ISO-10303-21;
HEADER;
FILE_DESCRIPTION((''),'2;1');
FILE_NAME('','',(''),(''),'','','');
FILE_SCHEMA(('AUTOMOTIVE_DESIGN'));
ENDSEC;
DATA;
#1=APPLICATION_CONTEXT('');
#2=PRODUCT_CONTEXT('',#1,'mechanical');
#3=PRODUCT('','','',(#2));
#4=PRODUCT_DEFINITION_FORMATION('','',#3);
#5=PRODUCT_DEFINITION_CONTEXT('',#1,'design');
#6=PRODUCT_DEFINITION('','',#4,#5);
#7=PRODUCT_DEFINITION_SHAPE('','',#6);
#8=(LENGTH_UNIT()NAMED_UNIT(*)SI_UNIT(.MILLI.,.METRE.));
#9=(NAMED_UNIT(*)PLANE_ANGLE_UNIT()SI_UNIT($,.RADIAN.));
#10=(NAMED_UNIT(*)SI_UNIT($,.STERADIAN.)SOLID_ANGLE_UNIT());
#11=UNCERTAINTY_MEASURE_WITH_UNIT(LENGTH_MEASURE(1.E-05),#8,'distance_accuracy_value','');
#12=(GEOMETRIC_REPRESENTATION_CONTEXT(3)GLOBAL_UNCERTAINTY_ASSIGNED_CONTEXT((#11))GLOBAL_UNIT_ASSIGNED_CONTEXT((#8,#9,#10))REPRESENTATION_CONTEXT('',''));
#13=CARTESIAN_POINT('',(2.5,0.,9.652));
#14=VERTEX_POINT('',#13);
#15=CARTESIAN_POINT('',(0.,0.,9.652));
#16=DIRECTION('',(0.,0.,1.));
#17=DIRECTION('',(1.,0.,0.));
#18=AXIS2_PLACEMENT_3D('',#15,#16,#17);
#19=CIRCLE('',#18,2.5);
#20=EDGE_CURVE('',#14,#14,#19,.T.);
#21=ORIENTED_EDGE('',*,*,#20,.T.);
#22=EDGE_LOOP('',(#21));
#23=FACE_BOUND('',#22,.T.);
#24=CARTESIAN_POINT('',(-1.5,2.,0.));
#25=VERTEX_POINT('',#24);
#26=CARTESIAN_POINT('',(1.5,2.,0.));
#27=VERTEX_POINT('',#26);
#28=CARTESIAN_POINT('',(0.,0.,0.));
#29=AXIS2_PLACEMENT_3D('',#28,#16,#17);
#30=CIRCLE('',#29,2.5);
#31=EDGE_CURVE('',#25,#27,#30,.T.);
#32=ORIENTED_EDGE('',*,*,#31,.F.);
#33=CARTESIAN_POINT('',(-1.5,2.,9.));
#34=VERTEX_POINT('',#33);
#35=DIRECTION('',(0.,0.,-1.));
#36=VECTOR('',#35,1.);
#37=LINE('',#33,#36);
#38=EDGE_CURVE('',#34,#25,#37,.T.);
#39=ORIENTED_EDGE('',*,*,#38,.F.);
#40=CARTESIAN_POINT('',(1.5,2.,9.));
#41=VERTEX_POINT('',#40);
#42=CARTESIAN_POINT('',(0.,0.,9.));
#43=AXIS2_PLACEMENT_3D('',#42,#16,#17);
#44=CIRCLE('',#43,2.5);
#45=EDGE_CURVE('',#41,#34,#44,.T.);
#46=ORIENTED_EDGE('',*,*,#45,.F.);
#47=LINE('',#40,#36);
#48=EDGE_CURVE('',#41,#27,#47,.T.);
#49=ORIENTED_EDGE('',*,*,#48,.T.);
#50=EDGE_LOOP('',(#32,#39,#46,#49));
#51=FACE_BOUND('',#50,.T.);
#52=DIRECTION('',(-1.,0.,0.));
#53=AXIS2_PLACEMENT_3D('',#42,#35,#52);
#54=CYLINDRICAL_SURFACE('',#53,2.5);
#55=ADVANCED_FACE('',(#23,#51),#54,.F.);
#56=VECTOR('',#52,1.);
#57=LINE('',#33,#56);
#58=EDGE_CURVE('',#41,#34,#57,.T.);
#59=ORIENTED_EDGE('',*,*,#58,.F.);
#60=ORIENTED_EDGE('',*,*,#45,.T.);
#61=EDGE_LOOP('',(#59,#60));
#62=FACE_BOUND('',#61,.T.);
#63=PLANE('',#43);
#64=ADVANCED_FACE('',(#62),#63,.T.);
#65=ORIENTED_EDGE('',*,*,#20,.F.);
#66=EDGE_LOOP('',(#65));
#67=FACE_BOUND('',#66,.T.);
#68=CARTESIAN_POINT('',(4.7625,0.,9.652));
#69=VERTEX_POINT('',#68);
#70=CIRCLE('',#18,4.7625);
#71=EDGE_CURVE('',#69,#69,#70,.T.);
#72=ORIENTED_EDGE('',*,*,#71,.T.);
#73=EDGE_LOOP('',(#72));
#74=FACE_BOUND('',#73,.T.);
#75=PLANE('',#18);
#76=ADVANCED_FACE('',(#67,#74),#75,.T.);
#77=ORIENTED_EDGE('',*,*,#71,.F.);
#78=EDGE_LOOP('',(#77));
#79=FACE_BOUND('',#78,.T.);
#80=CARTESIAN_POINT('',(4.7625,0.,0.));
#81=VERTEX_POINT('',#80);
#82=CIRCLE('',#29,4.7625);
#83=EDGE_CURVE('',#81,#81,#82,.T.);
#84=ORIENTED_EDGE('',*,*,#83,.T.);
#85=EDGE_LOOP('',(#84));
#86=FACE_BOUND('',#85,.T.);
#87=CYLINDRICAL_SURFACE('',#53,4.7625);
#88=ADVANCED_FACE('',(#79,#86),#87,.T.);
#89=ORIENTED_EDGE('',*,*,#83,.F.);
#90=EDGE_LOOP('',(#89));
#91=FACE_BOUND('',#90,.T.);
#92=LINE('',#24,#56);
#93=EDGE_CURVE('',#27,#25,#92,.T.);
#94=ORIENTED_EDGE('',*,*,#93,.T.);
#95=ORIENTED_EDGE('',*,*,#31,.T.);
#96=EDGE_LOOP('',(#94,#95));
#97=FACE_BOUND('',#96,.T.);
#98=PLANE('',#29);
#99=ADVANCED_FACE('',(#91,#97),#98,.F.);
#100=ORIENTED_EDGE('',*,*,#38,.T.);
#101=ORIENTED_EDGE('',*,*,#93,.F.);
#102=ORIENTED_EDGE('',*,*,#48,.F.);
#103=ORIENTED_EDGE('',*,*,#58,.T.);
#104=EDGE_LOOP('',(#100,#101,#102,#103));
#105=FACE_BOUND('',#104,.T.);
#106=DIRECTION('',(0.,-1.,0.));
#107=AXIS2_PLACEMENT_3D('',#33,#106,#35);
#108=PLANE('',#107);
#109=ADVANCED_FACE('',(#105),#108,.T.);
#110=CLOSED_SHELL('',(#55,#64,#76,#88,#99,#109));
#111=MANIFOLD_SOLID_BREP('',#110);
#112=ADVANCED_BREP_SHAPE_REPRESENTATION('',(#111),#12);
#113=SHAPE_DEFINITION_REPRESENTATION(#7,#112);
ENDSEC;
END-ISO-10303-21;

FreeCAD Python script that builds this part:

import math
import FreeCAD as App
import Part
import Sketcher

V = App.Vector

doc = App.newDocument("Part")
body = doc.addObject("PartDesign::Body", "Body")

# Sketch on XY plane
sketch1 = body.newObject("Sketcher::SketchObject", "Sketch")
sketch1.AttachmentSupport = (doc.getObject("XY_Plane"), [""])
sketch1.MapMode = "FlatFace"
sketch1.addGeometry([
    Part.Circle(V(0, 0, 0), V(0, 0, 1), 4.7625),
    Part.ArcOfCircle(Part.Circle(V(0, 0, 0), V(0, 0, 1), 2.5), math.radians(126.869898), math.radians(413.130102)),
    Part.LineSegment(V(-1.5, 2, 0), V(1.5, 2, 0)),
], False)
sketch1.addConstraint([
    Sketcher.Constraint("Coincident", 1, 1, 2, 1),
    Sketcher.Constraint("Coincident", 2, 2, 1, 2),
    Sketcher.Constraint("Horizontal", 2),
    Sketcher.Constraint("Coincident", 0, 3, -1, 1),
    Sketcher.Constraint("Coincident", 1, 3, -1, 1),
    Sketcher.Constraint("Radius", 1, 2.5),
    Sketcher.Constraint("DistanceX", 2, 1, 2, 2, 3.0),
    Sketcher.Constraint("Diameter", 0, 9.525),
])
pad1 = body.newObject("PartDesign::Pad", "Pad")
pad1.Profile = sketch1
pad1.Length = 9

# Sketch on XY plane
sketch2 = body.newObject("Sketcher::SketchObject", "Sketch001")
sketch2.AttachmentSupport = (doc.getObject("XY_Plane"), [""])
sketch2.MapMode = "FlatFace"
sketch2.AttachmentOffset = App.Placement(V(0, 0, 9), App.Rotation())
sketch2.addGeometry([
    Part.Circle(V(0, 0, 0), V(0, 0, 1), 4.7625),
    Part.Circle(V(0, 0, 0), V(0, 0, 1), 2.5),
], False)
sketch2.addConstraint([
    Sketcher.Constraint("Coincident", 0, 3, -1, 1),
    Sketcher.Constraint("Coincident", 1, 3, -1, 1),
    Sketcher.Constraint("Diameter", 1, 5.0),
    Sketcher.Constraint("Diameter", 0, 9.525),
])
pad2 = body.newObject("PartDesign::Pad", "Pad001")
pad2.Profile = sketch2
pad2.Length = 0.652

doc.recompute()
